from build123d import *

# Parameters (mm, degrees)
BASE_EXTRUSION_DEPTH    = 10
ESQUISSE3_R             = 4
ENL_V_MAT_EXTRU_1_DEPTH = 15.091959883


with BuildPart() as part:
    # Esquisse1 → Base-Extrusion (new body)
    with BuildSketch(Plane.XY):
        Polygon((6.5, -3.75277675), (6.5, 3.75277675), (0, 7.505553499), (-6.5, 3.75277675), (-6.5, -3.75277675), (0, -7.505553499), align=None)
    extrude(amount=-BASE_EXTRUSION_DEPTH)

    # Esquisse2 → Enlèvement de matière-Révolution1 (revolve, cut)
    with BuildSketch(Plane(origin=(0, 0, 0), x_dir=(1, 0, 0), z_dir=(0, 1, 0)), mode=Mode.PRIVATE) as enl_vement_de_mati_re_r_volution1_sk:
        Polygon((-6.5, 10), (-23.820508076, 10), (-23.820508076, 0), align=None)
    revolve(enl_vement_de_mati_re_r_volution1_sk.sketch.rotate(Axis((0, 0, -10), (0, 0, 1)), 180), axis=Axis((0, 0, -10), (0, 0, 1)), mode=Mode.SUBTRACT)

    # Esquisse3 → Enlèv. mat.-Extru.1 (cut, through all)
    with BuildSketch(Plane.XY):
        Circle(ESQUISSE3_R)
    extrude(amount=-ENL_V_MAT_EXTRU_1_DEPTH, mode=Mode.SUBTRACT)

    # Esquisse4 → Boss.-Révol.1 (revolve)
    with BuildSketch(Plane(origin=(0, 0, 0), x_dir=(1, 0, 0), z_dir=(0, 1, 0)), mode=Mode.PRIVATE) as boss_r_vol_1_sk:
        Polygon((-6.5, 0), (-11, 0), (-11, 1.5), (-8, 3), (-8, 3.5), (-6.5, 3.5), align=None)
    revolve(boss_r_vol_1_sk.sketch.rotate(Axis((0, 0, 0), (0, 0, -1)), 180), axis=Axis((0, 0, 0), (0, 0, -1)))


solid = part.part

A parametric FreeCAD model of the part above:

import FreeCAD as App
import Part
import Sketcher

V = App.Vector
Q = App.Units.Quantity


def add_polygon(sketch, points):
    """Adds a closed chain of lines whose ends are joined by coincident constraints."""
    first, n = sketch.GeometryCount, len(points)
    for a, b in zip(points, points[1:] + points[:1]):
        sketch.addGeometry(Part.LineSegment(App.Vector(*a, 0), App.Vector(*b, 0)), False)
    for i in range(n):
        sketch.addConstraint(Sketcher.Constraint("Coincident", first + i, 2, first + (i + 1) % n, 1))

doc = App.newDocument("Part")
body = doc.addObject("PartDesign::Body", "Body")

# Sketch on XY plane
sketch1 = body.newObject("Sketcher::SketchObject", "Sketch")
sketch1.AttachmentSupport = (doc.getObject("XY_Plane"), [""])
sketch1.MapMode = "FlatFace"
add_polygon(sketch1, [(6, -4), (6, 4), (0, 8), (-6, 4), (-6, -4), (0, -8)])  # lines 0-5
sketch1.addConstraint([
    Sketcher.Constraint("Vertical", 0),
    Sketcher.Constraint("Vertical", 3),
    Sketcher.Constraint("Symmetric", 0, 2, 3, 2, -1, 1),
    Sketcher.Constraint("Symmetric", 1, 2, 4, 2, -1, 1),
    Sketcher.Constraint("PointOnObject", 1, 2, -2),
    Sketcher.Constraint("Parallel", 2, 5),
    Sketcher.Constraint("Horizontal", 0, 2, 2, 2),
    Sketcher.Constraint("Angle", 1, Q("150 deg")),
    Sketcher.Constraint("DistanceX", 2, 2, 0, 2, Q("13 mm")),
    Sketcher.Constraint("DistanceY", 0, 1, 0, 2, Q("7.505554 mm")),
])
pad1 = body.newObject("PartDesign::Pad", "Pad")
pad1.Profile = sketch1
pad1.Length = 10
pad1.Reversed = True

# Sketch on XZ plane
sketch2 = body.newObject("Sketcher::SketchObject", "Sketch001")
sketch2.AttachmentSupport = (doc.getObject("XZ_Plane"), [""])
sketch2.MapMode = "FlatFace"
add_polygon(sketch2, [(-6, -10), (-24, -10), (-24, 0)])  # lines 0-2
sketch2.addConstraint([
    Sketcher.Constraint("Horizontal", 0),
    Sketcher.Constraint("Vertical", 1),
    Sketcher.Constraint("PointOnObject", 1, 2, -1),
    Sketcher.Constraint("DistanceY", 1, 1, 1, 2, Q("10 mm")),
    Sketcher.Constraint("Angle", 2, Q("-30 deg")),
    Sketcher.Constraint("DistanceX", 2, 2, -1, 1, Q("6.5 mm")),
])
groove = body.newObject("PartDesign::Groove", "Groove")
groove.Profile = sketch2
groove.ReferenceAxis = (sketch2, ["V_Axis"])
groove.Angle = 360

# Sketch on XY plane
sketch3 = body.newObject("Sketcher::SketchObject", "Sketch002")
sketch3.AttachmentSupport = (doc.getObject("XY_Plane"), [""])
sketch3.MapMode = "FlatFace"
sketch3.addGeometry(Part.Circle(V(0, 0, 0), V(0, 0, 1), 4), False)
sketch3.addConstraint([
    Sketcher.Constraint("Coincident", 0, 3, -1, 1),
    Sketcher.Constraint("Diameter", 0, Q("8 mm")),
])
pocket1 = body.newObject("PartDesign::Pocket", "Pocket")
pocket1.Profile = sketch3
pocket1.Type = "ThroughAll"

# Sketch on XZ plane
sketch4 = body.newObject("Sketcher::SketchObject", "Sketch003")
sketch4.AttachmentSupport = (doc.getObject("XZ_Plane"), [""])
sketch4.MapMode = "FlatFace"
add_polygon(sketch4, [(-11, 0), (-6.5, 0), (-6.5, -3.5), (-8, -3.5), (-8, -3), (-11, -1.5)])  # lines 0-5
sketch4.addConstraint([
    Sketcher.Constraint("Horizontal", 0),
    Sketcher.Constraint("Vertical", 1),
    Sketcher.Constraint("Horizontal", 2),
    Sketcher.Constraint("Vertical", 3),
    Sketcher.Constraint("Vertical", 5),
    Sketcher.Constraint("PointOnObject", 0, 2, -1),
    Sketcher.Constraint("Equal", 2, 5),
    Sketcher.Constraint("DistanceX", 0, 1, 0, 2, Q("4.5 mm")),
    Sketcher.Constraint("DistanceX", 2, 2, 2, 1, Q("1.5 mm")),
    Sketcher.Constraint("DistanceY", 1, 2, 1, 1, Q("3.5 mm")),
    Sketcher.Constraint("DistanceY", 3, 1, 3, 2, Q("0.5 mm")),
    Sketcher.Constraint("DistanceX", 2, 2, -1, 1, Q("8 mm")),
])
revolution = body.newObject("PartDesign::Revolution", "Revolution")
revolution.Profile = sketch4
revolution.ReferenceAxis = (sketch4, ["V_Axis"])
revolution.Angle = 360

doc.recompute()
